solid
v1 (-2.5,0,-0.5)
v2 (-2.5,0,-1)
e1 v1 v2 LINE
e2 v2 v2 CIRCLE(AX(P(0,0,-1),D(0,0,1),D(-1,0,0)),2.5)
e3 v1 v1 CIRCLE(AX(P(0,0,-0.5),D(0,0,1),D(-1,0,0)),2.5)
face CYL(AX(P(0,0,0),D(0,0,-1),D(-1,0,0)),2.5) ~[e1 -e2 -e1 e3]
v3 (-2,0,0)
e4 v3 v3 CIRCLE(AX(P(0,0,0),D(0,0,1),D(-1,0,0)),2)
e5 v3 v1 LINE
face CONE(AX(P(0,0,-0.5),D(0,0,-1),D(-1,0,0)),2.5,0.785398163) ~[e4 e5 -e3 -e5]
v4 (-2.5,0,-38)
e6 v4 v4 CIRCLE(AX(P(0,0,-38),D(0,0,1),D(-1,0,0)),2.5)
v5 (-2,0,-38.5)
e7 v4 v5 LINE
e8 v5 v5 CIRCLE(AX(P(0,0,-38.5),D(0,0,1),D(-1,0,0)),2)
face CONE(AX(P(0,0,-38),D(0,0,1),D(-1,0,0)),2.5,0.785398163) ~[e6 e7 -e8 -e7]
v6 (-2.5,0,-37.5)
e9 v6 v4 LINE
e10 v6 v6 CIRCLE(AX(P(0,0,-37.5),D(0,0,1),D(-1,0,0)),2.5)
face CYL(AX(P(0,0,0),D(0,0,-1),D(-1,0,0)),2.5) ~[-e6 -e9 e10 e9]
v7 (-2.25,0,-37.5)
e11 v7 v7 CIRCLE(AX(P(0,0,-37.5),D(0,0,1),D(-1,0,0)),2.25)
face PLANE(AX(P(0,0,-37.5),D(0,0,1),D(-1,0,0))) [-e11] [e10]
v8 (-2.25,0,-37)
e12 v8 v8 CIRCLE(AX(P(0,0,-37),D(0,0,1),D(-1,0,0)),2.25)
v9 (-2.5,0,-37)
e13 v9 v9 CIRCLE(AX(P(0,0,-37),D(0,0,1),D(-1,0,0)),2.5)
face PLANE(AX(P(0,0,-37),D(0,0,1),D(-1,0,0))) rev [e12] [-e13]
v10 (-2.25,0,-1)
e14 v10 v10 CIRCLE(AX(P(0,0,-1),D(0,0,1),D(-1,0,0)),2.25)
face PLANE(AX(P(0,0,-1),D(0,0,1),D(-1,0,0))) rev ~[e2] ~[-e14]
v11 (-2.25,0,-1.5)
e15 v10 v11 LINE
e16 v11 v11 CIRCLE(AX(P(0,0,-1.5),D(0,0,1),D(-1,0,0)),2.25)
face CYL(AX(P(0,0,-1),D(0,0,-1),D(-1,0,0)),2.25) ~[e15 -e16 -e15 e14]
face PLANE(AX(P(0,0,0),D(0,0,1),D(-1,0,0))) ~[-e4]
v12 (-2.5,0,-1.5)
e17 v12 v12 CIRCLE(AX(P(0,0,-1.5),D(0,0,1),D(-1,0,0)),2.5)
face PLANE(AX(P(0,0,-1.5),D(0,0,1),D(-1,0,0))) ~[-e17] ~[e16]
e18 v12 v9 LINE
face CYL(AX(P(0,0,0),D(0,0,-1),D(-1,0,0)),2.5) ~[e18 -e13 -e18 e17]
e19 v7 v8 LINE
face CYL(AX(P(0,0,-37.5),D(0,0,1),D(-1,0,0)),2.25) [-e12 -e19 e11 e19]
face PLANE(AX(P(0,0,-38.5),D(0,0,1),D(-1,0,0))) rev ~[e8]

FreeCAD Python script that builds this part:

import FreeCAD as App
import Part
import Sketcher

V = App.Vector


def edges_at(feature, points):
    """Names of the edges that pass closest to the given points."""
    edges = feature.Shape.Edges
    near = lambda p: min(range(len(edges)), key=lambda i: edges[i].distToShape(Part.Vertex(*p))[0])
    return sorted({f"Edge{near(p) + 1}" for p in points})


def add_polygon(sketch, points):
    """Adds a closed chain of lines whose ends are joined by coincident constraints."""
    first, n = sketch.GeometryCount, len(points)
    for a, b in zip(points, points[1:] + points[:1]):
        sketch.addGeometry(Part.LineSegment(App.Vector(*a, 0), App.Vector(*b, 0)), False)
    for i in range(n):
        sketch.addConstraint(Sketcher.Constraint("Coincident", first + i, 2, first + (i + 1) % n, 1))

doc = App.newDocument("Part")
params = doc.addObject("Spreadsheet::Sheet", "Params")
for row, (alias, value) in enumerate([
    ("sketch1_height", "1 mm"),
    ("sketch1_width", "2.5 mm"),
    ("sketch1_height2", "38.5 mm"),
    ("sketch1_height3", "0.5 mm"),
    ("sketch1_width2", "0.25 mm"),
    ("revolution_angle", "360 deg"),
    ("chamfer_size", "0.5 mm"),
], start=1):
    params.set(f"A{row}", alias)
    params.set(f"B{row}", "=" + value)
    params.setAlias(f"B{row}", alias)

body = doc.addObject("PartDesign::Body", "Body")

sketch1 = doc.addObject("Sketcher::SketchObject", "Sketch")
body.addObject(sketch1)
sketch1.AttachmentSupport = (doc.XZ_Plane, [""])
sketch1.MapMode = "FlatFace"
add_polygon(sketch1, [(-2.5, 0), (0, 0), (0, -38.5), (-2.5, -38.5), (-2.5, -37.5), (-2.25, -37.5), (-2.25, -37), (-2.5, -37), (-2.5, -1.5), (-2.25, -1.5), (-2.25, -1), (-2.5, -1)])
sketch1.addConstraint([
    Sketcher.Constraint("Horizontal", 0),
    Sketcher.Constraint("Vertical", 1),
    Sketcher.Constraint("Horizontal", 2),
    Sketcher.Constraint("Vertical", 3),
    Sketcher.Constraint("Horizontal", 4),
    Sketcher.Constraint("Vertical", 5),
    Sketcher.Constraint("Horizontal", 6),
    Sketcher.Constraint("Vertical", 7),
    Sketcher.Constraint("Horizontal", 8),
    Sketcher.Constraint("Vertical", 9),
    Sketcher.Constraint("Horizontal", 10),
    Sketcher.Constraint("Vertical", 11),
    Sketcher.Constraint("Coincident", 0, 2, -1, 1),
    Sketcher.Constraint("Vertical", 3, 2, 6, 2),
    Sketcher.Constraint("Vertical", 5, 2, 8, 2),
    Sketcher.Constraint("Vertical", 7, 2, 10, 2),
    Sketcher.Constraint("Equal", 5, 9),
    Sketcher.Constraint("Equal", 3, 11),
    Sketcher.Constraint("DistanceY", 3, 1, 3, 2, 1.0),
    Sketcher.Constraint("DistanceX", 0, 1, 0, 2, 2.5),
    Sketcher.Constraint("DistanceY", 1, 2, 1, 1, 38.5),
    Sketcher.Constraint("DistanceY", 5, 1, 5, 2, 0.5),
    Sketcher.Constraint("DistanceX", 4, 1, 4, 2, 0.25),
])
sketch1.setExpression("Constraints[30]", "Params.sketch1_height")
sketch1.setExpression("Constraints[31]", "Params.sketch1_width")
sketch1.setExpression("Constraints[32]", "Params.sketch1_height2")
sketch1.setExpression("Constraints[33]", "Params.sketch1_height3")
sketch1.setExpression("Constraints[34]", "Params.sketch1_width2")
revolution = doc.addObject("PartDesign::Revolution", "Revolution")
body.addObject(revolution)
revolution.Profile = sketch1
revolution.ReferenceAxis = (sketch1, ["V_Axis"])
revolution.setExpression("Angle", "Params.revolution_angle")
doc.recompute()

chamfer = doc.addObject("PartDesign::Chamfer", "Chamfer")
body.addObject(chamfer)
chamfer.Base = (revolution, edges_at(revolution, [(2.5, 0, 0), (2.5, 0, -38.5)]))
chamfer.setExpression("Size", "Params.chamfer_size")

doc.recompute()
